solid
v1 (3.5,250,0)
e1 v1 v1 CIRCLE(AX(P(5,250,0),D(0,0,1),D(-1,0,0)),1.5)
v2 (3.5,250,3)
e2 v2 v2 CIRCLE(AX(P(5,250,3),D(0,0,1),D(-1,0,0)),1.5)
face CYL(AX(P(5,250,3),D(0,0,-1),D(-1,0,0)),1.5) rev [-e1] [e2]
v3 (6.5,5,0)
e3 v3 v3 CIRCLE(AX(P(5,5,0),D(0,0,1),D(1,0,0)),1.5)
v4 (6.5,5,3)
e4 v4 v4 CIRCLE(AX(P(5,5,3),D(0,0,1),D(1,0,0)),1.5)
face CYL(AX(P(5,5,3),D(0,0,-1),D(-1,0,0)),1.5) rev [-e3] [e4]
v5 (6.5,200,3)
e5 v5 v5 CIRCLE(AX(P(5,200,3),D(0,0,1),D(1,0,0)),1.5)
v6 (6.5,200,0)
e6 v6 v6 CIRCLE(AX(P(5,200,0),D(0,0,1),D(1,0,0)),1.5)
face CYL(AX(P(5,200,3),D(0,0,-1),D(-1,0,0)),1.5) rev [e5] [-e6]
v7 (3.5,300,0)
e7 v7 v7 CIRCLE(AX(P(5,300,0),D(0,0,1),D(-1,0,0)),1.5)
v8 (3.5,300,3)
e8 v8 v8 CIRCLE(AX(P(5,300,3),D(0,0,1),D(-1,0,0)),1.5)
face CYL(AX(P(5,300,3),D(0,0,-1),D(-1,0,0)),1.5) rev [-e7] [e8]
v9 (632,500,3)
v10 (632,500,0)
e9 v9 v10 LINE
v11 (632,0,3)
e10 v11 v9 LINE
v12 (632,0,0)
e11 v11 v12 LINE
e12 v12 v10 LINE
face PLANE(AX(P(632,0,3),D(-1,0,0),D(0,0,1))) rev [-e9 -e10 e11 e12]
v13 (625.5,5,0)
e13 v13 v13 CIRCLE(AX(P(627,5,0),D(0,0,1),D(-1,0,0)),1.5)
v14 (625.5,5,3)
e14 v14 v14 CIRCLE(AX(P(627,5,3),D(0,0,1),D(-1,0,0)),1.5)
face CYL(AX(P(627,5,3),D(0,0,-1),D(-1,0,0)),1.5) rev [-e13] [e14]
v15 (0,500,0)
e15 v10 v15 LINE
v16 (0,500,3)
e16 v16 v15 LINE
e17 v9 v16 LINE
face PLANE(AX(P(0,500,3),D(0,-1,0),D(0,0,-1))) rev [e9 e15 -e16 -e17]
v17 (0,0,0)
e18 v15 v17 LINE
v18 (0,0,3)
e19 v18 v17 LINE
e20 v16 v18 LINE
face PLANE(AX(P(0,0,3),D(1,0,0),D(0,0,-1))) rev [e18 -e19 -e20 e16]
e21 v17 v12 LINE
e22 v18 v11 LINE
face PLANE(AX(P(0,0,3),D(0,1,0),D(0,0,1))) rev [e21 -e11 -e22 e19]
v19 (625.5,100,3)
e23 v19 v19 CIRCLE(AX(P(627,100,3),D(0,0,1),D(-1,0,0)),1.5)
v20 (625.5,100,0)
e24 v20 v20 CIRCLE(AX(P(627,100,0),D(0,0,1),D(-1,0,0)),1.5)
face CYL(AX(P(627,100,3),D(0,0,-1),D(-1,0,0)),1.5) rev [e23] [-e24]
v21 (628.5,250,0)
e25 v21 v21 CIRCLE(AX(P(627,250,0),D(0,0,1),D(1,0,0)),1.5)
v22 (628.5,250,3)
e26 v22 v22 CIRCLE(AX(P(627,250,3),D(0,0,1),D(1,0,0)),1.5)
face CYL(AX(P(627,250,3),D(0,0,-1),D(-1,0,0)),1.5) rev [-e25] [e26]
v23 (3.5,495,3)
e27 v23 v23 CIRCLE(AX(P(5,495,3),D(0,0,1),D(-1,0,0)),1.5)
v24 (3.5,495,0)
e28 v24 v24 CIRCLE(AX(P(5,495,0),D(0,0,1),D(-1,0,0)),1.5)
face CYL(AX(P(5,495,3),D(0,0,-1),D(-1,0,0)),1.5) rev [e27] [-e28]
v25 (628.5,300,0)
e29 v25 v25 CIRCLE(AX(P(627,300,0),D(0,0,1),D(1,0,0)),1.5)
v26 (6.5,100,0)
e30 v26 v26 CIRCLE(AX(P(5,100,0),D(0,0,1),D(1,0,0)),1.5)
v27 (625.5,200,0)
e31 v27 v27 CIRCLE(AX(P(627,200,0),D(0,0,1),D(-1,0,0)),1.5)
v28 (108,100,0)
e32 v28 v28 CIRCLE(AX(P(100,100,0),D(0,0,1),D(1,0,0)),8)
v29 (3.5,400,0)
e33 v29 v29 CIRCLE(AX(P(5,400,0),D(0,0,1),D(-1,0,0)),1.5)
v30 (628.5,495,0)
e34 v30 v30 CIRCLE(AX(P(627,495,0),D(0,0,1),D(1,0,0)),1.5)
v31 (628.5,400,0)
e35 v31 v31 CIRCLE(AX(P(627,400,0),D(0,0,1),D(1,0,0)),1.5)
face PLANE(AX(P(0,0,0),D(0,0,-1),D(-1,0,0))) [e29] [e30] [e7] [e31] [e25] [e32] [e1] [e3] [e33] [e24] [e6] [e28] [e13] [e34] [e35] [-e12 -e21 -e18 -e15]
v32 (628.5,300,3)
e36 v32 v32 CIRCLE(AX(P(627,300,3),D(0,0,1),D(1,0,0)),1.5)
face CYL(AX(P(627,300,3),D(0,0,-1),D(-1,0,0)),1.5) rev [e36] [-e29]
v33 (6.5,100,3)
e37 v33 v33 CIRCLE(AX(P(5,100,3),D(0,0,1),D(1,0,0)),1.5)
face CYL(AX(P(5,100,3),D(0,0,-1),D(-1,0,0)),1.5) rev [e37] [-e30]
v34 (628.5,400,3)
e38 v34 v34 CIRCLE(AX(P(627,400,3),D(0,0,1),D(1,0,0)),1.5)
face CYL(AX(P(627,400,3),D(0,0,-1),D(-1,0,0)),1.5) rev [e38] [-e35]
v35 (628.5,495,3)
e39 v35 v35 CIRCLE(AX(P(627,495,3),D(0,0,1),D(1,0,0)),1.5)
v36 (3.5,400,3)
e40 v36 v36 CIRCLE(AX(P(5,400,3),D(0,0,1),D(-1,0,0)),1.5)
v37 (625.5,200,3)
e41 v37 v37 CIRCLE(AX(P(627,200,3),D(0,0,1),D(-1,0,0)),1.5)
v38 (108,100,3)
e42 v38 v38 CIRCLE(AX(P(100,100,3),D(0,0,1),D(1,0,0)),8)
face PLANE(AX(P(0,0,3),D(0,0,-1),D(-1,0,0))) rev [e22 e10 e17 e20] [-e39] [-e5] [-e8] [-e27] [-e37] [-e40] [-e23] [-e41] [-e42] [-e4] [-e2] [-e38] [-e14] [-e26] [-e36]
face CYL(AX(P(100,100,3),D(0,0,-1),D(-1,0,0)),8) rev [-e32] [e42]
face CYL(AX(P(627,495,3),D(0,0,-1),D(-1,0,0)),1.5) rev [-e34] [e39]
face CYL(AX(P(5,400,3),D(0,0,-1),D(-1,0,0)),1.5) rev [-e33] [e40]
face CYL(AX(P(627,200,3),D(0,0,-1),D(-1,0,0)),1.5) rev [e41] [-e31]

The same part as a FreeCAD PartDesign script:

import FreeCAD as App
import Part
import Sketcher

V = App.Vector
Q = App.Units.Quantity


def add_polygon(sketch, points):
    """Adds a closed chain of lines whose ends are joined by coincident constraints."""
    first, n = sketch.GeometryCount, len(points)
    for a, b in zip(points, points[1:] + points[:1]):
        sketch.addGeometry(Part.LineSegment(App.Vector(*a, 0), App.Vector(*b, 0)), False)
    for i in range(n):
        sketch.addConstraint(Sketcher.Constraint("Coincident", first + i, 2, first + (i + 1) % n, 1))

doc = App.newDocument("Part")
body = doc.addObject("PartDesign::Body", "Body")

sketch1 = body.newObject("Sketcher::SketchObject", "Sketch")
sketch1.AttachmentSupport = (doc.getObject("XY_Plane"), [""])
sketch1.MapMode = "FlatFace"
add_polygon(sketch1, [(0, 500), (0, 0), (632, 0), (632, 500)])
sketch1.addGeometry(Part.Circle(V(5, 5, 0), V(0, 0, 1), 1.5), False)
sketch1.addGeometry(Part.Circle(V(5, 100, 0), V(0, 0, 1), 1.5), False)
sketch1.addGeometry(Part.Circle(V(100, 100, 0), V(0, 0, 1), 8), False)
sketch1.addGeometry(Part.Circle(V(5, 200, 0), V(0, 0, 1), 1.5), False)
sketch1.addGeometry(Part.Circle(V(627, 5, 0), V(0, 0, 1), 1.5), False)
sketch1.addGeometry(Part.Circle(V(627, 100, 0), V(0, 0, 1), 1.5), False)
sketch1.addGeometry(Part.Circle(V(627, 200, 0), V(0, 0, 1), 1.5), False)
sketch1.addGeometry(Part.Circle(V(5, 250, 0), V(0, 0, 1), 1.5), False)
sketch1.addGeometry(Part.Circle(V(5, 300, 0), V(0, 0, 1), 1.5), False)
sketch1.addGeometry(Part.Circle(V(5, 400, 0), V(0, 0, 1), 1.5), False)
sketch1.addGeometry(Part.Circle(V(5, 495, 0), V(0, 0, 1), 1.5), False)
sketch1.addGeometry(Part.Circle(V(627, 250, 0), V(0, 0, 1), 1.5), False)
sketch1.addGeometry(Part.Circle(V(627, 300, 0), V(0, 0, 1), 1.5), False)
sketch1.addGeometry(Part.Circle(V(627, 400, 0), V(0, 0, 1), 1.5), False)
sketch1.addGeometry(Part.Circle(V(627, 495, 0), V(0, 0, 1), 1.5), False)
sketch1.addConstraint([
    Sketcher.Constraint("Vertical", 0),
    Sketcher.Constraint("Horizontal", 1),
    Sketcher.Constraint("Vertical", 2),
    Sketcher.Constraint("Horizontal", 3),
    Sketcher.Constraint("Coincident", 0, 2, -1, 1),
    Sketcher.Constraint("Equal", 4, 5),
    Sketcher.Constraint("Equal", 5, 7),
    Sketcher.Constraint("Equal", 7, 8),
    Sketcher.Constraint("Equal", 8, 9),
    Sketcher.Constraint("Equal", 9, 10),
    Sketcher.Constraint("Equal", 10, 11),
    Sketcher.Constraint("Equal", 11, 12),
    Sketcher.Constraint("Equal", 12, 13),
    Sketcher.Constraint("Equal", 13, 14),
    Sketcher.Constraint("Equal", 14, 15),
    Sketcher.Constraint("Equal", 15, 16),
    Sketcher.Constraint("Equal", 16, 17),
    Sketcher.Constraint("Equal", 17, 18),
    Sketcher.Constraint("Horizontal", 5, 3, 6, 3),
    Sketcher.Constraint("Horizontal", 4, 3, 8, 3),
    Sketcher.Constraint("Horizontal", 6, 3, 9, 3),
    Sketcher.Constraint("Horizontal", 7, 3, 10, 3),
    Sketcher.Constraint("Horizontal", 11, 3, 15, 3),
    Sketcher.Constraint("Horizontal", 12, 3, 16, 3),
    Sketcher.Constraint("Horizontal", 13, 3, 17, 3),
    Sketcher.Constraint("Horizontal", 14, 3, 18, 3),
    Sketcher.Constraint("Vertical", 4, 3, 5, 3),
    Sketcher.Constraint("Vertical", 5, 3, 7, 3),
    Sketcher.Constraint("Vertical", 8, 3, 9, 3),
    Sketcher.Constraint("Vertical", 9, 3, 10, 3),
    Sketcher.Constraint("Vertical", 7, 3, 11, 3),
    Sketcher.Constraint("Vertical", 11, 3, 12, 3),
    Sketcher.Constraint("Vertical", 12, 3, 13, 3),
    Sketcher.Constraint("Vertical", 13, 3, 14, 3),
    Sketcher.Constraint("Vertical", 10, 3, 15, 3),
    Sketcher.Constraint("Vertical", 15, 3, 16, 3),
    Sketcher.Constraint("Vertical", 16, 3, 17, 3),
    Sketcher.Constraint("Vertical", 17, 3, 18, 3),
    Sketcher.Constraint("Diameter", 4, Q("3 mm")),
    Sketcher.Constraint("Diameter", 6, Q("16 mm")),
    Sketcher.Constraint("DistanceX", 1, 1, 1, 2, Q("632 mm")),
    Sketcher.Constraint("DistanceY", 0, 2, 0, 1, Q("500 mm")),
    Sketcher.Constraint("DistanceX", -1, 1, 4, 3, Q("5 mm")),
    Sketcher.Constraint("DistanceY", -1, 1, 4, 3, Q("5 mm")),
    Sketcher.Constraint("DistanceY", -1, 1, 5, 3, Q("100 mm")),
    Sketcher.Constraint("DistanceX", -1, 1, 6, 3, Q("100 mm")),
    Sketcher.Constraint("DistanceY", -1, 1, 7, 3, Q("200 mm")),
    Sketcher.Constraint("DistanceX", -1, 1, 8, 3, Q("627 mm")),
    Sketcher.Constraint("DistanceY", -1, 1, 11, 3, Q("250 mm")),
    Sketcher.Constraint("DistanceY", -1, 1, 12, 3, Q("300 mm")),
    Sketcher.Constraint("DistanceY", -1, 1, 13, 3, Q("400 mm")),
    Sketcher.Constraint("DistanceY", -1, 1, 14, 3, Q("495 mm")),
])
pad1 = body.newObject("PartDesign::Pad", "Pad")
pad1.Profile = sketch1
pad1.Length = 3

doc.recompute()
